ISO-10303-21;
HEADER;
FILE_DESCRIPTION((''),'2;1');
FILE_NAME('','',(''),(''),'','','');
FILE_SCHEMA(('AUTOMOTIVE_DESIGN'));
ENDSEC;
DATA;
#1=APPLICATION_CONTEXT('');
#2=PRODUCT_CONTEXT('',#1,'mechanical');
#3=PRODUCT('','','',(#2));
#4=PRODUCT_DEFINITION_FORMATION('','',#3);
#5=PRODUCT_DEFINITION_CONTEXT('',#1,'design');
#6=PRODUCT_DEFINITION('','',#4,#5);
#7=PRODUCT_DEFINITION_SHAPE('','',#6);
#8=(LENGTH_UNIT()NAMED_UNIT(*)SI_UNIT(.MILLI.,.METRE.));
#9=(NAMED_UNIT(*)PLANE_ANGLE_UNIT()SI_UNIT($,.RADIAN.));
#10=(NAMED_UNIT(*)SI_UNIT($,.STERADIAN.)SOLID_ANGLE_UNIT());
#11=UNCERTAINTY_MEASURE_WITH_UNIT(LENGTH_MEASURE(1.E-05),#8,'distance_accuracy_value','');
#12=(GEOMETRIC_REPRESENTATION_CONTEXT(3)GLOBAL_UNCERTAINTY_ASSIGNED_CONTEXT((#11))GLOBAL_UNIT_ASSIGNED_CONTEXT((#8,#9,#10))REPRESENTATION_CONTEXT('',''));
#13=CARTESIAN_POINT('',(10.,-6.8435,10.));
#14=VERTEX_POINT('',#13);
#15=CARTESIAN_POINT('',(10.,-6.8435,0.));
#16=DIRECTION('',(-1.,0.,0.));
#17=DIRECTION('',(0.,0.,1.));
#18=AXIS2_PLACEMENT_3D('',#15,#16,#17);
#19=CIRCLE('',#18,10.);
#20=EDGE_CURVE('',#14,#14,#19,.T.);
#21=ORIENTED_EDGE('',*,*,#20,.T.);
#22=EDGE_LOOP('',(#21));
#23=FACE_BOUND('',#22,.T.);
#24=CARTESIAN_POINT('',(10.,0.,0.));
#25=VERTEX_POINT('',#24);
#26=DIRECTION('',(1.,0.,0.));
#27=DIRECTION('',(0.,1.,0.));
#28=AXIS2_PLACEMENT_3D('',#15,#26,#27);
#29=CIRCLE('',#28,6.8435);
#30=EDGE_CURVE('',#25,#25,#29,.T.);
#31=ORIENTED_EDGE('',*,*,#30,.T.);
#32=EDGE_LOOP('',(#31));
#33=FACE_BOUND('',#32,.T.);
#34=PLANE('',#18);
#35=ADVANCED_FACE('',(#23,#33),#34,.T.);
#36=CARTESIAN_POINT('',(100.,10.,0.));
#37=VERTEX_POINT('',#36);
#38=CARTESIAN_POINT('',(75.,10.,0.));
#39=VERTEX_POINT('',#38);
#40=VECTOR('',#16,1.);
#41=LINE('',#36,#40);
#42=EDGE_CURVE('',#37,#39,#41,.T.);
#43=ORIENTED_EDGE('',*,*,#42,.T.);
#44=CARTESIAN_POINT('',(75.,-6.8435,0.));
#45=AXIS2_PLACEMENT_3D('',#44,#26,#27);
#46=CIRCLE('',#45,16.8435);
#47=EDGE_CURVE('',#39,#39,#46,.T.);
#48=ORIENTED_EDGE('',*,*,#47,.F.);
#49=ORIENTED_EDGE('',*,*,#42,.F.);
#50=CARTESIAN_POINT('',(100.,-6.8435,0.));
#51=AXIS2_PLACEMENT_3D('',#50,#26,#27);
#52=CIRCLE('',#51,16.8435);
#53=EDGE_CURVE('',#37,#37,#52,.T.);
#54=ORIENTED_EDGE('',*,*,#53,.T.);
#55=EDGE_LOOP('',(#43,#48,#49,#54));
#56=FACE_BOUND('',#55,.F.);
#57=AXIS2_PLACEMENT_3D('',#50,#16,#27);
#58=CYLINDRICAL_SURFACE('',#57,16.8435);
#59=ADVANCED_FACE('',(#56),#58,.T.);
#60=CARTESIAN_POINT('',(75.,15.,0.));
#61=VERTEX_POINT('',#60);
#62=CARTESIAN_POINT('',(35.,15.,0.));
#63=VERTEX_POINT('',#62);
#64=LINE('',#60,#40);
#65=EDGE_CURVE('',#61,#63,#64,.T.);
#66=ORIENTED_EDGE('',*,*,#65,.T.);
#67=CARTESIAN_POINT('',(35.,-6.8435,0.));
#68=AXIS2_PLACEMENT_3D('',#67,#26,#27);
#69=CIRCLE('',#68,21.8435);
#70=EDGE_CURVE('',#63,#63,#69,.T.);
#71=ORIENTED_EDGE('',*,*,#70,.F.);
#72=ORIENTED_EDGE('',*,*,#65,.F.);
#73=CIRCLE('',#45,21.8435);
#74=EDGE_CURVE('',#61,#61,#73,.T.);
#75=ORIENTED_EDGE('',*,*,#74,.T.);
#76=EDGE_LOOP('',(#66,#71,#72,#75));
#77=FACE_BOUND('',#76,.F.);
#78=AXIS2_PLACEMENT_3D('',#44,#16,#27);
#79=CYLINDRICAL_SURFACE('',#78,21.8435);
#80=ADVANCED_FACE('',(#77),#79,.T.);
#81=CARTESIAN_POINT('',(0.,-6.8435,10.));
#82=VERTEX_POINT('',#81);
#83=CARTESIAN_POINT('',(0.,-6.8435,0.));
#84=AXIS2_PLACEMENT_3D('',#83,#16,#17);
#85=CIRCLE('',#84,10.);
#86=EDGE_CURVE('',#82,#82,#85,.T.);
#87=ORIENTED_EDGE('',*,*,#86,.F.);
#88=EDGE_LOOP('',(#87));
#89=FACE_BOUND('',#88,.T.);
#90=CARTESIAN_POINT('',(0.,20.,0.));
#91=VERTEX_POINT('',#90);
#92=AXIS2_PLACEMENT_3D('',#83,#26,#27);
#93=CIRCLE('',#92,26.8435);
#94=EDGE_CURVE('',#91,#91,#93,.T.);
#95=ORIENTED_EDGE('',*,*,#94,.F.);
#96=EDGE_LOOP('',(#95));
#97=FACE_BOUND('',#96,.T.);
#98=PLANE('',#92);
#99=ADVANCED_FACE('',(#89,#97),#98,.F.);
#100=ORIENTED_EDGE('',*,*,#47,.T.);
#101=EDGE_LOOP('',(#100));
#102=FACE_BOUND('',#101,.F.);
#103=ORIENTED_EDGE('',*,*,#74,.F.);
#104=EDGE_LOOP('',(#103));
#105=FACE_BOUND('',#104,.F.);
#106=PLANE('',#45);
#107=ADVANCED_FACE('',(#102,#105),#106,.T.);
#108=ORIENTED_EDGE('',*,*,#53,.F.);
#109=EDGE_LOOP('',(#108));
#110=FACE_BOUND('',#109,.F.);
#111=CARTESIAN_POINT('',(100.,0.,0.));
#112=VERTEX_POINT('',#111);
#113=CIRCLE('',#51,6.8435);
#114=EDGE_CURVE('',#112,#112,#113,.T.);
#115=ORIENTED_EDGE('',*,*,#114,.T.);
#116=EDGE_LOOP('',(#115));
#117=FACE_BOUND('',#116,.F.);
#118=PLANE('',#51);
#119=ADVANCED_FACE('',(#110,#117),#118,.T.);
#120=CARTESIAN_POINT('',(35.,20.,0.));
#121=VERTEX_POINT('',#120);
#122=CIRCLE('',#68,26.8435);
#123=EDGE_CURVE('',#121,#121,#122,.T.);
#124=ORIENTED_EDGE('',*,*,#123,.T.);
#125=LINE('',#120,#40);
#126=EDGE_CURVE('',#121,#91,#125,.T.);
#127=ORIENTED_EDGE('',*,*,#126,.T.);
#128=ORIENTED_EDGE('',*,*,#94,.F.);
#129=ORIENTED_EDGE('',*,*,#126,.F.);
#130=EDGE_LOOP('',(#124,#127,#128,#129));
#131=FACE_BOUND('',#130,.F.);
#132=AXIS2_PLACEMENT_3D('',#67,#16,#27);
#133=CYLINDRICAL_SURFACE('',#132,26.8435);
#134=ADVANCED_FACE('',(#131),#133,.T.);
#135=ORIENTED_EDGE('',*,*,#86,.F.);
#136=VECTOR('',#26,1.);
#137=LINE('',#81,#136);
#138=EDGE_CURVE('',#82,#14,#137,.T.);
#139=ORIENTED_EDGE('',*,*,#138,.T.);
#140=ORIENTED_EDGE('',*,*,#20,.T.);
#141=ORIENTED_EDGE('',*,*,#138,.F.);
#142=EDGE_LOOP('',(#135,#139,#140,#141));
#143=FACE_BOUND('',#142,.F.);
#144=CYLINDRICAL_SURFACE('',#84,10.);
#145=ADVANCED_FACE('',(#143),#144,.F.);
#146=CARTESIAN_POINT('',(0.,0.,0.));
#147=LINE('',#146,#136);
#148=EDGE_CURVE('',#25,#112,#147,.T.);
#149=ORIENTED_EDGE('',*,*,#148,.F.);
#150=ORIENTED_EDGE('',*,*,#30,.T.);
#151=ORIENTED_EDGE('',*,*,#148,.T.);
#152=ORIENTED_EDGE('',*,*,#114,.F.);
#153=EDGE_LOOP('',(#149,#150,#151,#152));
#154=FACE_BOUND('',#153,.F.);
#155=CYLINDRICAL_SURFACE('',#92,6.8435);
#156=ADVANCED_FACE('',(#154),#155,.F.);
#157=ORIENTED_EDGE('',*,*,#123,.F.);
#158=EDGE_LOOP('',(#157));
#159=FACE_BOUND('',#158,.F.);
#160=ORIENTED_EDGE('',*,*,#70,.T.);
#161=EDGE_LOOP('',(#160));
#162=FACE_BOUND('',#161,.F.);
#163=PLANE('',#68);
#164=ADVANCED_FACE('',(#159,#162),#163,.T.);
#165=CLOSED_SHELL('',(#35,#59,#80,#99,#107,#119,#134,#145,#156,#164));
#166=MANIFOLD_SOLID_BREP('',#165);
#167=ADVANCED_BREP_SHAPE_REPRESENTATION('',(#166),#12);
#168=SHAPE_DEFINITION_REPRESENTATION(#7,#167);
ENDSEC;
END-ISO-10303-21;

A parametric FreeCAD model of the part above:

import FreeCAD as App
import Part
import Sketcher
from FreeCAD import Vector
Q = App.Units.Quantity


def add_polygon(sketch, points):
    """Adds a closed chain of lines whose ends are joined by coincident constraints."""
    first, n = sketch.GeometryCount, len(points)
    for a, b in zip(points, points[1:] + points[:1]):
        sketch.addGeometry(Part.LineSegment(App.Vector(*a, 0), App.Vector(*b, 0)), False)
    for i in range(n):
        sketch.addConstraint(Sketcher.Constraint("Coincident", first + i, 2, first + (i + 1) % n, 1))

doc = App.newDocument("Part")
body = doc.addObject("PartDesign::Body", "Body")

sketch1 = body.newObject("Sketcher::SketchObject", "Sketch")
sketch1.AttachmentSupport = (doc.getObject("XY_Plane"), [""])
sketch1.MapMode = "FlatFace"
add_polygon(sketch1, [(0, 20), (0, 0), (100, 0), (100, 10), (75, 10), (75, 15), (35, 15), (35, 20)])
sketch1.addGeometry(Part.LineSegment(Vector(0, -7, 0), Vector(100, -7, 0)), True)
sketch1.addConstraint(Sketcher.Constraint("Vertical", 0))
sketch1.addConstraint(Sketcher.Constraint("Horizontal", 1))
sketch1.addConstraint(Sketcher.Constraint("Vertical", 2))
sketch1.addConstraint(Sketcher.Constraint("Horizontal", 3))
sketch1.addConstraint(Sketcher.Constraint("Vertical", 4))
sketch1.addConstraint(Sketcher.Constraint("Horizontal", 5))
sketch1.addConstraint(Sketcher.Constraint("Vertical", 6))
sketch1.addConstraint(Sketcher.Constraint("Horizontal", 7))
sketch1.addConstraint(Sketcher.Constraint("Horizontal", 8))
sketch1.addConstraint(Sketcher.Constraint("Coincident", 0, 2, -1, 1))
sketch1.addConstraint(Sketcher.Constraint("PointOnObject", 8, 1, -2))
sketch1.addConstraint(Sketcher.Constraint("Vertical", 2, 2, 8, 2))
sketch1.addConstraint(Sketcher.Constraint("Equal", 4, 6))
sketch1.addConstraint(Sketcher.Constraint("DistanceX", 1, 1, 1, 2, Q("100 mm")))
sketch1.addConstraint(Sketcher.Constraint("DistanceX", 3, 2, 3, 1, Q("25 mm")))
sketch1.addConstraint(Sketcher.Constraint("DistanceX", 5, 2, 5, 1, Q("40 mm")))
sketch1.addConstraint(Sketcher.Constraint("DistanceY", 2, 1, 2, 2, Q("10 mm")))
sketch1.addConstraint(Sketcher.Constraint("DistanceY", 4, 1, 4, 2, Q("5 mm")))
sketch1.addConstraint(Sketcher.Constraint("DistanceY", 8, 1, -1, 1, Q("6.8435 mm")))
revolution = body.newObject("PartDesign::Revolution", "Revolution")
revolution.Profile = sketch1
revolution.ReferenceAxis = (sketch1, ["Axis0"])
revolution.Angle = 360

sketch2 = body.newObject("Sketcher::SketchObject", "Sketch001")
sketch2.AttachmentSupport = (doc.getObject("YZ_Plane"), [""])
sketch2.MapMode = "FlatFace"
sketch2.addGeometry(Part.Circle(Vector(-7, 0, 0), Vector(0, 0, 1), 10), False)
sketch2.addConstraint(Sketcher.Constraint("PointOnObject", 0, 3, -1))
sketch2.addConstraint(Sketcher.Constraint("Diameter", 0, Q("20 mm")))
sketch2.addConstraint(Sketcher.Constraint("DistanceX", 0, 3, -1, 1, Q("6.8435 mm")))
pocket1 = body.newObject("PartDesign::Pocket", "Pocket")
pocket1.Profile = sketch2
pocket1.Length = 10
pocket1.Reversed = True

doc.recompute()
